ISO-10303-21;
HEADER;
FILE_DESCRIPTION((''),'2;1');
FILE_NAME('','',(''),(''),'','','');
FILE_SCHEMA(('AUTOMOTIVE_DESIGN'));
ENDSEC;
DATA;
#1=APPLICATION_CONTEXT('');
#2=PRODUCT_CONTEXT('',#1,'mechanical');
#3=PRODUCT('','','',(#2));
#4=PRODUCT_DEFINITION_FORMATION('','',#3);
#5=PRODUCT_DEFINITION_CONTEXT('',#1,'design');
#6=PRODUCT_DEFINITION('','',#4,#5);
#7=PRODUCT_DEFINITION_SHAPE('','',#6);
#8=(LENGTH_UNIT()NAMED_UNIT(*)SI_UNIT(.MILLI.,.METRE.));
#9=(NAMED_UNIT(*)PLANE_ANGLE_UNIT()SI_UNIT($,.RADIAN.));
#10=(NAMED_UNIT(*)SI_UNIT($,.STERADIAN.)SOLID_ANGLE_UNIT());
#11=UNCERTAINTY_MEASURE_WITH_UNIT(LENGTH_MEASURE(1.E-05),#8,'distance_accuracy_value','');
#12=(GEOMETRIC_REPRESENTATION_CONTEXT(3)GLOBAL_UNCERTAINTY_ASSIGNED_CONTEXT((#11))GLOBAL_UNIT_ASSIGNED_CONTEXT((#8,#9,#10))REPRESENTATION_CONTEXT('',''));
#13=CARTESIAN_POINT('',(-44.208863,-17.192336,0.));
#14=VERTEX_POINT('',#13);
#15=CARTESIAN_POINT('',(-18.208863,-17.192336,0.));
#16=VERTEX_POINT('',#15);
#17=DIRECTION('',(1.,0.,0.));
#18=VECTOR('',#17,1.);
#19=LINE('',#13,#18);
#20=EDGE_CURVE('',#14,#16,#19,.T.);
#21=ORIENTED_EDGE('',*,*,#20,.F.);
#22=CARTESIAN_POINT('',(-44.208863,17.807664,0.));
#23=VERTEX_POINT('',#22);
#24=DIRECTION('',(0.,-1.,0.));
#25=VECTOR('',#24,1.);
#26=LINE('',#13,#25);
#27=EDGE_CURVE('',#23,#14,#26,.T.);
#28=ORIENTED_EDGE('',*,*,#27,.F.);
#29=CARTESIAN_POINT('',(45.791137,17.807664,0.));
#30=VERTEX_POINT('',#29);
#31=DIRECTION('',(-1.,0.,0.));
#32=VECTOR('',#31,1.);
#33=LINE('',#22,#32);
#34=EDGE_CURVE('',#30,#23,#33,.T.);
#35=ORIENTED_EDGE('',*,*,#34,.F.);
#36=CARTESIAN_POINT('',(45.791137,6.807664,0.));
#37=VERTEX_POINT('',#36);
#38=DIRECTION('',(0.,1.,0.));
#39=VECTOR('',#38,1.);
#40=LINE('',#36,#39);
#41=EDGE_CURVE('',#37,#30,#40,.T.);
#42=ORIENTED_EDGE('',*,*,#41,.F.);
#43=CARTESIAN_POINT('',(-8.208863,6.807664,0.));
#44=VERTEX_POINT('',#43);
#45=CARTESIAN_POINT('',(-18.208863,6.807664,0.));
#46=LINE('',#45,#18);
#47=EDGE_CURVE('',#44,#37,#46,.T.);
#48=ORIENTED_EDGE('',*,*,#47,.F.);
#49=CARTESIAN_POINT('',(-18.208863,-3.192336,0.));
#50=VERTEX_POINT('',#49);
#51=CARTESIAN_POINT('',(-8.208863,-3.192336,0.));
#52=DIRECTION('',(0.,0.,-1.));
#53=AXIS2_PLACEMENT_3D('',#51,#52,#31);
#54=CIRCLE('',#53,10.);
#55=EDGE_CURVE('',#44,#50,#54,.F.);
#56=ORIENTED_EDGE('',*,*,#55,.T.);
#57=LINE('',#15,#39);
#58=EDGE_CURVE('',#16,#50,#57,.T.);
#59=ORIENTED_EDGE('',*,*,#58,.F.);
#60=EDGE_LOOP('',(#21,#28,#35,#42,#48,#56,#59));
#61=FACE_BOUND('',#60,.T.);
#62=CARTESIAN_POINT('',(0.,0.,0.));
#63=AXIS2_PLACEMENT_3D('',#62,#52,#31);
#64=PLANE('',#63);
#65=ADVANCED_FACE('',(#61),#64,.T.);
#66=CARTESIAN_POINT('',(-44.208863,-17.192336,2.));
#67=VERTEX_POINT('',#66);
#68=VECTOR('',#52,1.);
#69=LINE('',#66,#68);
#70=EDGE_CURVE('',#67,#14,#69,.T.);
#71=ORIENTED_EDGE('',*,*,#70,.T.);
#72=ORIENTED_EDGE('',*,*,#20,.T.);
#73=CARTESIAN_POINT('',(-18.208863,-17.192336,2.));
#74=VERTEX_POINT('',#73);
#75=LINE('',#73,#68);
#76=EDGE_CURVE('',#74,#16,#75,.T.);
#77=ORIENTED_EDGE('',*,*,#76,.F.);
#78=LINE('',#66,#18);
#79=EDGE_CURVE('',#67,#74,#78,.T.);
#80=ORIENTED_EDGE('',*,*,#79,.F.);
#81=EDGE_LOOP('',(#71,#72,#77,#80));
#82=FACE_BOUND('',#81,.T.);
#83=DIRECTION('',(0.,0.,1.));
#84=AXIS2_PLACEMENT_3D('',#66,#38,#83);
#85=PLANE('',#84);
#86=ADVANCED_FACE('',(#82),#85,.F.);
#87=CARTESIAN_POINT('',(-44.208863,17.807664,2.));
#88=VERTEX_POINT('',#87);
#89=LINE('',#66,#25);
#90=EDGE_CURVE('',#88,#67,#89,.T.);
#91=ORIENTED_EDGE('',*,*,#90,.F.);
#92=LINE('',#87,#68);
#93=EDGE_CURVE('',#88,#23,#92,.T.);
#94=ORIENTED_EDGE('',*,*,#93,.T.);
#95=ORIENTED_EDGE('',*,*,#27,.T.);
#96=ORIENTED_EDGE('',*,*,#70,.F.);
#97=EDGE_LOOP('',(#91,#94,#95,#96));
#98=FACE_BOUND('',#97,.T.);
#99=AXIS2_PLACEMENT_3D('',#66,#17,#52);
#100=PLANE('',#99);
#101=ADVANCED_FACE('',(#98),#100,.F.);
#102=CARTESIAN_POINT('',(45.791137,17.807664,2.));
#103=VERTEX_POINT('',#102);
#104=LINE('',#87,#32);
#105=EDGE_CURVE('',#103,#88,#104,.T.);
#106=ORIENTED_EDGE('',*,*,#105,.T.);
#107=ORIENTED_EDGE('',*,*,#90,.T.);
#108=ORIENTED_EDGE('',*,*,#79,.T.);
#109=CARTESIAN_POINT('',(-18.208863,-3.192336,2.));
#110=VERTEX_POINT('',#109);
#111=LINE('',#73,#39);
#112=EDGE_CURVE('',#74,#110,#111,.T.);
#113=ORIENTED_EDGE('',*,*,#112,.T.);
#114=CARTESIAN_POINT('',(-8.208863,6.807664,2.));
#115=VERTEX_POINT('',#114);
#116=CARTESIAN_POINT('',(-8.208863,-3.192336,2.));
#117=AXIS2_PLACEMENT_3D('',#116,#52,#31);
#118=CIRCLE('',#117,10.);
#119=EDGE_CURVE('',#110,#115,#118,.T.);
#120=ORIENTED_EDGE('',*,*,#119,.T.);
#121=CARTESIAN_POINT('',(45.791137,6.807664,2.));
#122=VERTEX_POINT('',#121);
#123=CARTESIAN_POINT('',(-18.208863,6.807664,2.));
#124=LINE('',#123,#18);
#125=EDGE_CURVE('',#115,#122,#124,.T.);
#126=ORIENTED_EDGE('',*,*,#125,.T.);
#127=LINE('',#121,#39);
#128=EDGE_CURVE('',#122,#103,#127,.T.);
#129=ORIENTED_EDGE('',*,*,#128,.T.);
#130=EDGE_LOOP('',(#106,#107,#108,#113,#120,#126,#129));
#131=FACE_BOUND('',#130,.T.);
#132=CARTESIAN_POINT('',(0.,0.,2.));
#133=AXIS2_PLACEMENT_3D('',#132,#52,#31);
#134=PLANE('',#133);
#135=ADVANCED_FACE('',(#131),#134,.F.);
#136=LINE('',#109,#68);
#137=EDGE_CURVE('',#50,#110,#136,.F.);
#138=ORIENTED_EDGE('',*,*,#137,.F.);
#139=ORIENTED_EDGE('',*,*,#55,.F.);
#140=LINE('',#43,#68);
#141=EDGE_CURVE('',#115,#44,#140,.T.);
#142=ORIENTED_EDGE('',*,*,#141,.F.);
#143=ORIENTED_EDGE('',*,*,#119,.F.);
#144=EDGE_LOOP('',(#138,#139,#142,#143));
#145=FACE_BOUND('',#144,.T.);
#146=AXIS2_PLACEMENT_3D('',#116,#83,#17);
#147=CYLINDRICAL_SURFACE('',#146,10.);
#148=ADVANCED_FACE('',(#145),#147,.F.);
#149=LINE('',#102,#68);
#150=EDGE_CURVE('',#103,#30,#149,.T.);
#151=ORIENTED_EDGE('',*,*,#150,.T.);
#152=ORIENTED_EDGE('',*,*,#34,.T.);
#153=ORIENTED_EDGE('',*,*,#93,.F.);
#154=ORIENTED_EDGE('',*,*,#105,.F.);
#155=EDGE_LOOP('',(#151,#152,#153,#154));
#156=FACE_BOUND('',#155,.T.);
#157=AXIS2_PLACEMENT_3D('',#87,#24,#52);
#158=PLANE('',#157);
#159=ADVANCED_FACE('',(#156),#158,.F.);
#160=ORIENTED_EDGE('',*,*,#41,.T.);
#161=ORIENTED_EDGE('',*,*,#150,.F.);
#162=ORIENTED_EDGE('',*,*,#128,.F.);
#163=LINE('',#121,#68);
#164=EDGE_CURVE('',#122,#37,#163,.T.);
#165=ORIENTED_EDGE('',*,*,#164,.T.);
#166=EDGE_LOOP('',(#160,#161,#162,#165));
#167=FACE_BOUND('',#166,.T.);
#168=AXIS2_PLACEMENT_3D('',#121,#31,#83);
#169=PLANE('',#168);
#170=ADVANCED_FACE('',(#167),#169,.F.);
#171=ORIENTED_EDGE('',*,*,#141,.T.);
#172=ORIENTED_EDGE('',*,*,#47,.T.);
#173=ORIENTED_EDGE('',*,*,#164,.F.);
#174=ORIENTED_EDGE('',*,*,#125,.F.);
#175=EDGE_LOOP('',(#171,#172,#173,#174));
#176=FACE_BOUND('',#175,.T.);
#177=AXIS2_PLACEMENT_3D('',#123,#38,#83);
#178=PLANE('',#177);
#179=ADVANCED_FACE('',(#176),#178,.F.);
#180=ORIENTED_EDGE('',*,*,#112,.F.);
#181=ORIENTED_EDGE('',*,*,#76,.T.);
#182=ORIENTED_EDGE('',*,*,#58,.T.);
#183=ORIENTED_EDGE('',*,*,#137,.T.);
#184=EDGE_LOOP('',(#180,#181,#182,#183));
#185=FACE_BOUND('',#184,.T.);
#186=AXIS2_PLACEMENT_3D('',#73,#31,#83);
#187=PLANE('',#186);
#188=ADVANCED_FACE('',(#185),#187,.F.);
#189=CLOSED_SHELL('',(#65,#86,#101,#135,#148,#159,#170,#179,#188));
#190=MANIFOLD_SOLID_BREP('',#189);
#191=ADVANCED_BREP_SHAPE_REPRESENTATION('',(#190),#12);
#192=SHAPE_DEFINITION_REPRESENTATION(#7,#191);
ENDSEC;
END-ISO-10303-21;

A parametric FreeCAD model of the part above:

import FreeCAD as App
import Part
import Sketcher

V = App.Vector


def edges_at(feature, points):
    """Names of the edges that pass closest to the given points."""
    edges = feature.Shape.Edges
    near = lambda p: min(range(len(edges)), key=lambda i: edges[i].distToShape(Part.Vertex(*p))[0])
    return sorted({f"Edge{near(p) + 1}" for p in points})


def add_polygon(sketch, points):
    """Adds a closed chain of lines whose ends are joined by coincident constraints."""
    first, n = sketch.GeometryCount, len(points)
    for a, b in zip(points, points[1:] + points[:1]):
        sketch.addGeometry(Part.LineSegment(App.Vector(*a, 0), App.Vector(*b, 0)), False)
    for i in range(n):
        sketch.addConstraint(Sketcher.Constraint("Coincident", first + i, 2, first + (i + 1) % n, 1))

doc = App.newDocument("Part")
body = doc.addObject("PartDesign::Body", "Body")

# Sketch on XY plane
sketch1 = body.newObject("Sketcher::SketchObject", "Sketch")
sketch1.AttachmentSupport = (doc.getObject("XY_Plane"), [""])
sketch1.MapMode = "FlatFace"
add_polygon(sketch1, [(-18, -17), (-18, 7), (46, 7), (46, 18), (-44, 18), (-44, -17)])  # lines 0-5
sketch1.addConstraint([
    Sketcher.Constraint("Vertical", 0),
    Sketcher.Constraint("Horizontal", 1),
    Sketcher.Constraint("Vertical", 2),
    Sketcher.Constraint("Horizontal", 3),
    Sketcher.Constraint("Vertical", 4),
    Sketcher.Constraint("Horizontal", 5),
    Sketcher.Constraint("DistanceX", 1, 1, 1, 2, 64.0),
    Sketcher.Constraint("DistanceX", 3, 2, 3, 1, 90.0),
    Sketcher.Constraint("DistanceY", 0, 1, 0, 2, 24.0),
    Sketcher.Constraint("DistanceY", 2, 1, 2, 2, 11.0),
    Sketcher.Constraint("DistanceX", 0, 2, -1, 1, 18.208863),
    Sketcher.Constraint("DistanceY", -1, 1, 0, 2, 6.807664),
])
pad1 = body.newObject("PartDesign::Pad", "Pad")
pad1.Profile = sketch1
pad1.Length = 2
doc.recompute()

fillet = body.newObject("PartDesign::Fillet", "Fillet")
fillet.Base = (pad1, edges_at(pad1, [(-18.209, 6.808, 1)]))
fillet.Radius = 10

doc.recompute()
